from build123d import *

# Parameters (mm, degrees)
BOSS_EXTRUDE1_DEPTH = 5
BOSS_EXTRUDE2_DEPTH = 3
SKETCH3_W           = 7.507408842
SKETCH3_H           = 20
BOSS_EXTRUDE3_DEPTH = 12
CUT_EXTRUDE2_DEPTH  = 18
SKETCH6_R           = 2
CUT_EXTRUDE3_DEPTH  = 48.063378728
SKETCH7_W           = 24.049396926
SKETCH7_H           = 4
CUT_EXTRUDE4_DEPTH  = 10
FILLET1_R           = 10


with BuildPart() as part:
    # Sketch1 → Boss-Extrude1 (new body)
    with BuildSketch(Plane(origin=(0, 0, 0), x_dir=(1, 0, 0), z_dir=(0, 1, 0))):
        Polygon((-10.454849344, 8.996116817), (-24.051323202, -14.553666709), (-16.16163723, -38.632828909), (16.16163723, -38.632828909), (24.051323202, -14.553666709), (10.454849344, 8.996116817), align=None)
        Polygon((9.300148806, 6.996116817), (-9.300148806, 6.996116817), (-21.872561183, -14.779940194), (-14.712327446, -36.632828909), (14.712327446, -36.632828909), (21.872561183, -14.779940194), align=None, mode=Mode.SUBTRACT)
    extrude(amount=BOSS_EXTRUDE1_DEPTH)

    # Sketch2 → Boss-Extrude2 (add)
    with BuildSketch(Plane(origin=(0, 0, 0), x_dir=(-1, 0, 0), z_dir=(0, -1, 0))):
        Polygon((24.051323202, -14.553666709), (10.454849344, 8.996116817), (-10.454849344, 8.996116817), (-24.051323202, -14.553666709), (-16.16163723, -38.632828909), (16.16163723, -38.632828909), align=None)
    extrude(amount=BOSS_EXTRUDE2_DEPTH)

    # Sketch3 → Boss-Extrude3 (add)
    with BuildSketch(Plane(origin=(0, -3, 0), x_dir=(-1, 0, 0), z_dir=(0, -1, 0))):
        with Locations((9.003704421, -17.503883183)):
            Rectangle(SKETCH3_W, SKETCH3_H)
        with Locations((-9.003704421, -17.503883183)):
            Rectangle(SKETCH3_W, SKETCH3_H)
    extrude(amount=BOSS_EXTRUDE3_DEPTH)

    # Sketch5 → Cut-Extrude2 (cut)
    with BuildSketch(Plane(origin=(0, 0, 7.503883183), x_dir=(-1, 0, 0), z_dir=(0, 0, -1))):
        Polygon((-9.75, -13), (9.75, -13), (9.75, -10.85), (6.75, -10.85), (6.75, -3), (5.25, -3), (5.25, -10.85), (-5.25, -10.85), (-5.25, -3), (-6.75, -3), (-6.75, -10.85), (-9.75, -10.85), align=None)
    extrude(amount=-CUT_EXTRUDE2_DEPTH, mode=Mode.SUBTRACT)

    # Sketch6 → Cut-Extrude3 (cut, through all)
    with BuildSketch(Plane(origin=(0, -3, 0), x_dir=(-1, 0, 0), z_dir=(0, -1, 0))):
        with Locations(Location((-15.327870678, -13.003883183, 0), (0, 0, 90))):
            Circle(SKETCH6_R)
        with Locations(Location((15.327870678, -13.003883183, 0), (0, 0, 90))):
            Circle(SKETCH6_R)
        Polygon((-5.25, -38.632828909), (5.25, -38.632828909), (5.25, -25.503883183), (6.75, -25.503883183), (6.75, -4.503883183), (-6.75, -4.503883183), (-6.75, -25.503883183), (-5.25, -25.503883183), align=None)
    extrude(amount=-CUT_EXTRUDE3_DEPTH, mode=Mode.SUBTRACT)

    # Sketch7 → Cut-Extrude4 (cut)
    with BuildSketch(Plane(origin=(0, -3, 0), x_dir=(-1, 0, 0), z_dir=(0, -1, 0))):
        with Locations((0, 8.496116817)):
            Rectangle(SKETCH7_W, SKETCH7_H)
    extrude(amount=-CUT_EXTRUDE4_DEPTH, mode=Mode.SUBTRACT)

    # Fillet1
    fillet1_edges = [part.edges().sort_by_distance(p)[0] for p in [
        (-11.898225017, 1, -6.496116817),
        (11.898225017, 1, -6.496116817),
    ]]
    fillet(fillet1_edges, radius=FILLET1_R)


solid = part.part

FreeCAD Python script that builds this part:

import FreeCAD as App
import Part
import Sketcher
from FreeCAD import Vector
Q = App.Units.Quantity


def edges_at(feature, points):
    """Names of the edges that pass closest to the given points."""
    edges = feature.Shape.Edges
    near = lambda p: min(range(len(edges)), key=lambda i: edges[i].distToShape(Part.Vertex(*p))[0])
    return sorted({f"Edge{near(p) + 1}" for p in points})


def add_polygon(sketch, points):
    """Adds a closed chain of lines whose ends are joined by coincident constraints."""
    first, n = sketch.GeometryCount, len(points)
    for a, b in zip(points, points[1:] + points[:1]):
        sketch.addGeometry(Part.LineSegment(App.Vector(*a, 0), App.Vector(*b, 0)), False)
    for i in range(n):
        sketch.addConstraint(Sketcher.Constraint("Coincident", first + i, 2, first + (i + 1) % n, 1))

doc = App.newDocument("Part")
body = doc.addObject("PartDesign::Body", "Body")

sketch1 = body.newObject("Sketcher::SketchObject", "Sketch")
sketch1.AttachmentSupport = (doc.getObject("XZ_Plane"), [""])
sketch1.MapMode = "FlatFace"
add_polygon(sketch1, [(-10, -9), (-24, 15), (-16, 39), (16, 39), (24, 15), (10, -9)])
add_polygon(sketch1, [(-9, -7), (9, -7), (22, 15), (15, 37), (-15, 37), (-22, 15)])
sketch1.addConstraint(Sketcher.Constraint("Horizontal", 2))
sketch1.addConstraint(Sketcher.Constraint("Horizontal", 5))
sketch1.addConstraint(Sketcher.Constraint("Horizontal", 6))
sketch1.addConstraint(Sketcher.Constraint("Horizontal", 9))
sketch1.addConstraint(Sketcher.Constraint("Symmetric", 0, 2, 3, 2, -2))
sketch1.addConstraint(Sketcher.Constraint("Symmetric", 7, 2, 10, 2, -2))
sketch1.addConstraint(Sketcher.Constraint("Parallel", 4, 7))
sketch1.addConstraint(Sketcher.Constraint("Parallel", 3, 8))
sketch1.addConstraint(Sketcher.Constraint("Parallel", 1, 10))
sketch1.addConstraint(Sketcher.Constraint("Parallel", 0, 11))
sketch1.addConstraint(Sketcher.Constraint("Equal", 1, 3))
sketch1.addConstraint(Sketcher.Constraint("Equal", 0, 4))
sketch1.addConstraint(Sketcher.Constraint("Angle", 0, Q("120 deg")))
sketch1.addConstraint(Sketcher.Constraint("DistanceY", 4, 2, 6, 2, 2.0))
sketch1.addConstraint(Sketcher.Constraint("DistanceY", 8, 2, 2, 2, 2.0))
sketch1.addConstraint(Sketcher.Constraint("DistanceX", 5, 2, 5, 1, 20.909699))
sketch1.addConstraint(Sketcher.Constraint("DistanceX", 5, 2, 6, 2, 19.754998))
sketch1.addConstraint(Sketcher.Constraint("Distance", 1, 25.338769))
sketch1.addConstraint(Sketcher.Constraint("DistanceX", 2, 1, 2, 2, 32.323274))
sketch1.addConstraint(Sketcher.Constraint("DistanceX", 9, 2, 9, 1, 29.424655))
sketch1.addConstraint(Sketcher.Constraint("DistanceY", -1, 1, 1, 2, 38.632829))
sketch1.addConstraint(Sketcher.Constraint("DistanceX", -1, 1, 7, 2, 21.872561))
pad1 = body.newObject("PartDesign::Pad", "Pad")
pad1.Profile = sketch1
pad1.Length = 5
pad1.Reversed = True

sketch2 = body.newObject("Sketcher::SketchObject", "Sketch001")
sketch2.AttachmentSupport = (doc.getObject("XZ_Plane"), [""])
sketch2.MapMode = "FlatFace"
add_polygon(sketch2, [(-24, 15), (-10, -9), (10, -9), (24, 15), (16, 39), (-16, 39)])
sketch2.addConstraint(Sketcher.Constraint("Horizontal", 1))
sketch2.addConstraint(Sketcher.Constraint("Horizontal", 4))
sketch2.addConstraint(Sketcher.Constraint("Symmetric", 2, 2, 5, 2, -2))
sketch2.addConstraint(Sketcher.Constraint("Equal", 0, 2))
sketch2.addConstraint(Sketcher.Constraint("Equal", 3, 5))
sketch2.addConstraint(Sketcher.Constraint("Angle", 0, Q("-60 deg")))
sketch2.addConstraint(Sketcher.Constraint("DistanceX", 1, 1, 1, 2, 20.909699))
sketch2.addConstraint(Sketcher.Constraint("Distance", 3, 25.338769))
sketch2.addConstraint(Sketcher.Constraint("DistanceX", 4, 2, 4, 1, 32.323274))
sketch2.addConstraint(Sketcher.Constraint("DistanceY", -1, 1, 3, 2, 38.632829))
sketch2.addConstraint(Sketcher.Constraint("DistanceX", 4, 2, 2, 2, 40.21296))
pad2 = body.newObject("PartDesign::Pad", "Pad001")
pad2.Profile = sketch2
pad2.Length = 3

sketch3 = body.newObject("Sketcher::SketchObject", "Sketch002")
sketch3.AttachmentSupport = (doc.getObject("XZ_Plane"), [""])
sketch3.MapMode = "FlatFace"
sketch3.AttachmentOffset = App.Placement(Vector(0, 0, 3), App.Rotation())
add_polygon(sketch3, [(-5, 8), (-5, 28), (-13, 28), (-13, 8)])
add_polygon(sketch3, [(13, 8), (13, 28), (5, 28), (5, 8)])
sketch3.addConstraint(Sketcher.Constraint("Vertical", 0))
sketch3.addConstraint(Sketcher.Constraint("Horizontal", 1))
sketch3.addConstraint(Sketcher.Constraint("Vertical", 2))
sketch3.addConstraint(Sketcher.Constraint("Horizontal", 3))
sketch3.addConstraint(Sketcher.Constraint("Vertical", 4))
sketch3.addConstraint(Sketcher.Constraint("Horizontal", 5))
sketch3.addConstraint(Sketcher.Constraint("Vertical", 6))
sketch3.addConstraint(Sketcher.Constraint("Horizontal", 7))
sketch3.addConstraint(Sketcher.Constraint("Symmetric", 1, 2, 4, 2, -2))
sketch3.addConstraint(Sketcher.Constraint("Symmetric", 3, 2, 6, 2, -2))
sketch3.addConstraint(Sketcher.Constraint("DistanceY", 0, 1, 0, 2, 20.0))
sketch3.addConstraint(Sketcher.Constraint("DistanceX", 0, 2, 5, 2, 10.5))
sketch3.addConstraint(Sketcher.Constraint("DistanceX", 1, 2, 1, 1, 7.507409))
sketch3.addConstraint(Sketcher.Constraint("DistanceY", -1, 1, 0, 2, 27.503883))
pad3 = body.newObject("PartDesign::Pad", "Pad002")
pad3.Profile = sketch3
pad3.Length = 12

sketch4 = body.newObject("Sketcher::SketchObject", "Sketch003")
sketch4.AttachmentSupport = (doc.getObject("XY_Plane"), [""])
sketch4.MapMode = "FlatFace"
sketch4.AttachmentOffset = App.Placement(Vector(0, 0, 7.503883), App.Rotation())
add_polygon(sketch4, [(9.8, -13), (-9.8, -13), (-9.8, -10.8), (-6.8, -10.8), (-6.8, -3), (-5.2, -3), (-5.2, -10.8), (5.2, -10.8), (5.2, -3), (6.8, -3), (6.8, -10.8), (9.8, -10.8)])
sketch4.addConstraint(Sketcher.Constraint("Horizontal", 0))
sketch4.addConstraint(Sketcher.Constraint("Vertical", 1))
sketch4.addConstraint(Sketcher.Constraint("Horizontal", 2))
sketch4.addConstraint(Sketcher.Constraint("Vertical", 3))
sketch4.addConstraint(Sketcher.Constraint("Horizontal", 4))
sketch4.addConstraint(Sketcher.Constraint("Vertical", 5))
sketch4.addConstraint(Sketcher.Constraint("Horizontal", 6))
sketch4.addConstraint(Sketcher.Constraint("Vertical", 7))
sketch4.addConstraint(Sketcher.Constraint("Horizontal", 8))
sketch4.addConstraint(Sketcher.Constraint("Vertical", 9))
sketch4.addConstraint(Sketcher.Constraint("Horizontal", 10))
sketch4.addConstraint(Sketcher.Constraint("Vertical", 11))
sketch4.addConstraint(Sketcher.Constraint("Symmetric", 4, 2, 7, 2, -2))
sketch4.addConstraint(Sketcher.Constraint("Symmetric", 2, 2, 9, 2, -2))
sketch4.addConstraint(Sketcher.Constraint("Horizontal", 2, 2, 5, 2))
sketch4.addConstraint(Sketcher.Constraint("Equal", 2, 10))
sketch4.addConstraint(Sketcher.Constraint("DistanceX", 2, 1, 2, 2, 3.0))
sketch4.addConstraint(Sketcher.Constraint("DistanceX", 0, 2, 0, 1, 19.5))
sketch4.addConstraint(Sketcher.Constraint("DistanceX", 4, 1, 4, 2, 1.5))
sketch4.addConstraint(Sketcher.Constraint("DistanceY", 0, 2, -1, 1, 13.0))
sketch4.addConstraint(Sketcher.Constraint("DistanceY", 3, 2, -1, 1, 3.0))
sketch4.addConstraint(Sketcher.Constraint("DistanceY", 1, 1, 1, 2, 2.15))
pocket1 = body.newObject("PartDesign::Pocket", "Pocket")
pocket1.Profile = sketch4
pocket1.Length = 18
pocket1.Reversed = True

sketch5 = body.newObject("Sketcher::SketchObject", "Sketch004")
sketch5.AttachmentSupport = (doc.getObject("XZ_Plane"), [""])
sketch5.MapMode = "FlatFace"
sketch5.AttachmentOffset = App.Placement(Vector(0, 0, 3), App.Rotation())
sketch5.addGeometry(Part.Circle(Vector(15.3, 13, 0), Vector(0, 0, 1), 2), False)
sketch5.addGeometry(Part.Circle(Vector(-15.3, 13, 0), Vector(0, 0, 1), 2), False)
add_polygon(sketch5, [(5.2, 38.6), (-5.2, 38.6), (-5.2, 25.5), (-6.8, 25.5), (-6.8, 4.5), (6.8, 4.5), (6.8, 25.5), (5.2, 25.5)])
sketch5.addConstraint(Sketcher.Constraint("Horizontal", 2))
sketch5.addConstraint(Sketcher.Constraint("Vertical", 3))
sketch5.addConstraint(Sketcher.Constraint("Horizontal", 4))
sketch5.addConstraint(Sketcher.Constraint("Vertical", 5))
sketch5.addConstraint(Sketcher.Constraint("Horizontal", 6))
sketch5.addConstraint(Sketcher.Constraint("Vertical", 7))
sketch5.addConstraint(Sketcher.Constraint("Horizontal", 8))
sketch5.addConstraint(Sketcher.Constraint("Vertical", 9))
sketch5.addConstraint(Sketcher.Constraint("Equal", 0, 1))
sketch5.addConstraint(Sketcher.Constraint("Symmetric", 0, 3, 1, 3, -2))
sketch5.addConstraint(Sketcher.Constraint("Symmetric", 4, 2, 7, 2, -2))
sketch5.addConstraint(Sketcher.Constraint("Equal", 4, 8))
sketch5.addConstraint(Sketcher.Constraint("Diameter", 0, 4.0))
sketch5.addConstraint(Sketcher.Constraint("DistanceY", 5, 2, 5, 1, 21.0))
sketch5.addConstraint(Sketcher.Constraint("DistanceX", 2, 2, 2, 1, 10.5))
sketch5.addConstraint(Sketcher.Constraint("DistanceX", 4, 2, 4, 1, 1.5))
sketch5.addConstraint(Sketcher.Constraint("DistanceY", 1, 3, 3, 2, 12.5))
sketch5.addConstraint(Sketcher.Constraint("DistanceY", 3, 2, 3, 1, 13.128946))
sketch5.addConstraint(Sketcher.Constraint("DistanceX", -1, 1, 0, 3, 15.327871))
sketch5.addConstraint(Sketcher.Constraint("DistanceY", -1, 1, 2, 2, 38.632829))
pocket2 = body.newObject("PartDesign::Pocket", "Pocket001")
pocket2.Profile = sketch5
pocket2.Type = "ThroughAll"

sketch6 = body.newObject("Sketcher::SketchObject", "Sketch005")
sketch6.AttachmentSupport = (doc.getObject("XZ_Plane"), [""])
sketch6.MapMode = "FlatFace"
sketch6.AttachmentOffset = App.Placement(Vector(0, 0, 3), App.Rotation())
add_polygon(sketch6, [(12, -10.5), (12, -6.5), (-12, -6.5), (-12, -10.5)])
sketch6.addConstraint(Sketcher.Constraint("Vertical", 0))
sketch6.addConstraint(Sketcher.Constraint("Horizontal", 1))
sketch6.addConstraint(Sketcher.Constraint("Vertical", 2))
sketch6.addConstraint(Sketcher.Constraint("Horizontal", 3))
sketch6.addConstraint(Sketcher.Constraint("DistanceY", 0, 1, 0, 2, 4.0))
sketch6.addConstraint(Sketcher.Constraint("DistanceX", -1, 1, 0, 2, 12.024698))
sketch6.addConstraint(Sketcher.Constraint("DistanceX", 1, 2, -1, 1, 12.024698))
sketch6.addConstraint(Sketcher.Constraint("DistanceY", 0, 2, -1, 1, 6.496117))
pocket3 = body.newObject("PartDesign::Pocket", "Pocket002")
pocket3.Profile = sketch6
pocket3.Length = 10
doc.recompute()

fillet = body.newObject("PartDesign::Fillet", "Fillet")
fillet.Base = (pocket3, edges_at(pocket3, [(-11.898, 1, -6.496), (11.898, 1, -6.496)]))
fillet.Radius = 10

doc.recompute()
